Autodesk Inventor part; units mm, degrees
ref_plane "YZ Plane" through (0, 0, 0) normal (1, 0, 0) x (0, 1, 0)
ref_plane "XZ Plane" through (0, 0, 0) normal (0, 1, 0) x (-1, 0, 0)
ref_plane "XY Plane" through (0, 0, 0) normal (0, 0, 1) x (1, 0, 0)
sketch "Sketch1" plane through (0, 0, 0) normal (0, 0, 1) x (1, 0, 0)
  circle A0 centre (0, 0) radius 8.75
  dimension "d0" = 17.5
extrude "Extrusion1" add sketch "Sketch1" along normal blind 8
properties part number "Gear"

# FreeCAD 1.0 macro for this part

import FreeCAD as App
import Part
import Sketcher
from FreeCAD import Vector
Q = App.Units.Quantity

doc = App.newDocument("Part")
body = doc.addObject("PartDesign::Body", "Body")

# Sketch on XY plane
sketch1 = body.newObject("Sketcher::SketchObject", "Sketch")
sketch1.AttachmentSupport = (doc.getObject("XY_Plane"), [""])
sketch1.MapMode = "FlatFace"
sketch1.addGeometry(Part.Circle(Vector(0, 0, 0), Vector(0, 0, 1), 9), False)
sketch1.addConstraint([
    Sketcher.Constraint("Coincident", 0, 3, -1, 1),
    Sketcher.Constraint("Diameter", 0, Q("17.5 mm")),
])
pad1 = body.newObject("PartDesign::Pad", "Pad")
pad1.Profile = sketch1
pad1.Length = 8

doc.recompute()
